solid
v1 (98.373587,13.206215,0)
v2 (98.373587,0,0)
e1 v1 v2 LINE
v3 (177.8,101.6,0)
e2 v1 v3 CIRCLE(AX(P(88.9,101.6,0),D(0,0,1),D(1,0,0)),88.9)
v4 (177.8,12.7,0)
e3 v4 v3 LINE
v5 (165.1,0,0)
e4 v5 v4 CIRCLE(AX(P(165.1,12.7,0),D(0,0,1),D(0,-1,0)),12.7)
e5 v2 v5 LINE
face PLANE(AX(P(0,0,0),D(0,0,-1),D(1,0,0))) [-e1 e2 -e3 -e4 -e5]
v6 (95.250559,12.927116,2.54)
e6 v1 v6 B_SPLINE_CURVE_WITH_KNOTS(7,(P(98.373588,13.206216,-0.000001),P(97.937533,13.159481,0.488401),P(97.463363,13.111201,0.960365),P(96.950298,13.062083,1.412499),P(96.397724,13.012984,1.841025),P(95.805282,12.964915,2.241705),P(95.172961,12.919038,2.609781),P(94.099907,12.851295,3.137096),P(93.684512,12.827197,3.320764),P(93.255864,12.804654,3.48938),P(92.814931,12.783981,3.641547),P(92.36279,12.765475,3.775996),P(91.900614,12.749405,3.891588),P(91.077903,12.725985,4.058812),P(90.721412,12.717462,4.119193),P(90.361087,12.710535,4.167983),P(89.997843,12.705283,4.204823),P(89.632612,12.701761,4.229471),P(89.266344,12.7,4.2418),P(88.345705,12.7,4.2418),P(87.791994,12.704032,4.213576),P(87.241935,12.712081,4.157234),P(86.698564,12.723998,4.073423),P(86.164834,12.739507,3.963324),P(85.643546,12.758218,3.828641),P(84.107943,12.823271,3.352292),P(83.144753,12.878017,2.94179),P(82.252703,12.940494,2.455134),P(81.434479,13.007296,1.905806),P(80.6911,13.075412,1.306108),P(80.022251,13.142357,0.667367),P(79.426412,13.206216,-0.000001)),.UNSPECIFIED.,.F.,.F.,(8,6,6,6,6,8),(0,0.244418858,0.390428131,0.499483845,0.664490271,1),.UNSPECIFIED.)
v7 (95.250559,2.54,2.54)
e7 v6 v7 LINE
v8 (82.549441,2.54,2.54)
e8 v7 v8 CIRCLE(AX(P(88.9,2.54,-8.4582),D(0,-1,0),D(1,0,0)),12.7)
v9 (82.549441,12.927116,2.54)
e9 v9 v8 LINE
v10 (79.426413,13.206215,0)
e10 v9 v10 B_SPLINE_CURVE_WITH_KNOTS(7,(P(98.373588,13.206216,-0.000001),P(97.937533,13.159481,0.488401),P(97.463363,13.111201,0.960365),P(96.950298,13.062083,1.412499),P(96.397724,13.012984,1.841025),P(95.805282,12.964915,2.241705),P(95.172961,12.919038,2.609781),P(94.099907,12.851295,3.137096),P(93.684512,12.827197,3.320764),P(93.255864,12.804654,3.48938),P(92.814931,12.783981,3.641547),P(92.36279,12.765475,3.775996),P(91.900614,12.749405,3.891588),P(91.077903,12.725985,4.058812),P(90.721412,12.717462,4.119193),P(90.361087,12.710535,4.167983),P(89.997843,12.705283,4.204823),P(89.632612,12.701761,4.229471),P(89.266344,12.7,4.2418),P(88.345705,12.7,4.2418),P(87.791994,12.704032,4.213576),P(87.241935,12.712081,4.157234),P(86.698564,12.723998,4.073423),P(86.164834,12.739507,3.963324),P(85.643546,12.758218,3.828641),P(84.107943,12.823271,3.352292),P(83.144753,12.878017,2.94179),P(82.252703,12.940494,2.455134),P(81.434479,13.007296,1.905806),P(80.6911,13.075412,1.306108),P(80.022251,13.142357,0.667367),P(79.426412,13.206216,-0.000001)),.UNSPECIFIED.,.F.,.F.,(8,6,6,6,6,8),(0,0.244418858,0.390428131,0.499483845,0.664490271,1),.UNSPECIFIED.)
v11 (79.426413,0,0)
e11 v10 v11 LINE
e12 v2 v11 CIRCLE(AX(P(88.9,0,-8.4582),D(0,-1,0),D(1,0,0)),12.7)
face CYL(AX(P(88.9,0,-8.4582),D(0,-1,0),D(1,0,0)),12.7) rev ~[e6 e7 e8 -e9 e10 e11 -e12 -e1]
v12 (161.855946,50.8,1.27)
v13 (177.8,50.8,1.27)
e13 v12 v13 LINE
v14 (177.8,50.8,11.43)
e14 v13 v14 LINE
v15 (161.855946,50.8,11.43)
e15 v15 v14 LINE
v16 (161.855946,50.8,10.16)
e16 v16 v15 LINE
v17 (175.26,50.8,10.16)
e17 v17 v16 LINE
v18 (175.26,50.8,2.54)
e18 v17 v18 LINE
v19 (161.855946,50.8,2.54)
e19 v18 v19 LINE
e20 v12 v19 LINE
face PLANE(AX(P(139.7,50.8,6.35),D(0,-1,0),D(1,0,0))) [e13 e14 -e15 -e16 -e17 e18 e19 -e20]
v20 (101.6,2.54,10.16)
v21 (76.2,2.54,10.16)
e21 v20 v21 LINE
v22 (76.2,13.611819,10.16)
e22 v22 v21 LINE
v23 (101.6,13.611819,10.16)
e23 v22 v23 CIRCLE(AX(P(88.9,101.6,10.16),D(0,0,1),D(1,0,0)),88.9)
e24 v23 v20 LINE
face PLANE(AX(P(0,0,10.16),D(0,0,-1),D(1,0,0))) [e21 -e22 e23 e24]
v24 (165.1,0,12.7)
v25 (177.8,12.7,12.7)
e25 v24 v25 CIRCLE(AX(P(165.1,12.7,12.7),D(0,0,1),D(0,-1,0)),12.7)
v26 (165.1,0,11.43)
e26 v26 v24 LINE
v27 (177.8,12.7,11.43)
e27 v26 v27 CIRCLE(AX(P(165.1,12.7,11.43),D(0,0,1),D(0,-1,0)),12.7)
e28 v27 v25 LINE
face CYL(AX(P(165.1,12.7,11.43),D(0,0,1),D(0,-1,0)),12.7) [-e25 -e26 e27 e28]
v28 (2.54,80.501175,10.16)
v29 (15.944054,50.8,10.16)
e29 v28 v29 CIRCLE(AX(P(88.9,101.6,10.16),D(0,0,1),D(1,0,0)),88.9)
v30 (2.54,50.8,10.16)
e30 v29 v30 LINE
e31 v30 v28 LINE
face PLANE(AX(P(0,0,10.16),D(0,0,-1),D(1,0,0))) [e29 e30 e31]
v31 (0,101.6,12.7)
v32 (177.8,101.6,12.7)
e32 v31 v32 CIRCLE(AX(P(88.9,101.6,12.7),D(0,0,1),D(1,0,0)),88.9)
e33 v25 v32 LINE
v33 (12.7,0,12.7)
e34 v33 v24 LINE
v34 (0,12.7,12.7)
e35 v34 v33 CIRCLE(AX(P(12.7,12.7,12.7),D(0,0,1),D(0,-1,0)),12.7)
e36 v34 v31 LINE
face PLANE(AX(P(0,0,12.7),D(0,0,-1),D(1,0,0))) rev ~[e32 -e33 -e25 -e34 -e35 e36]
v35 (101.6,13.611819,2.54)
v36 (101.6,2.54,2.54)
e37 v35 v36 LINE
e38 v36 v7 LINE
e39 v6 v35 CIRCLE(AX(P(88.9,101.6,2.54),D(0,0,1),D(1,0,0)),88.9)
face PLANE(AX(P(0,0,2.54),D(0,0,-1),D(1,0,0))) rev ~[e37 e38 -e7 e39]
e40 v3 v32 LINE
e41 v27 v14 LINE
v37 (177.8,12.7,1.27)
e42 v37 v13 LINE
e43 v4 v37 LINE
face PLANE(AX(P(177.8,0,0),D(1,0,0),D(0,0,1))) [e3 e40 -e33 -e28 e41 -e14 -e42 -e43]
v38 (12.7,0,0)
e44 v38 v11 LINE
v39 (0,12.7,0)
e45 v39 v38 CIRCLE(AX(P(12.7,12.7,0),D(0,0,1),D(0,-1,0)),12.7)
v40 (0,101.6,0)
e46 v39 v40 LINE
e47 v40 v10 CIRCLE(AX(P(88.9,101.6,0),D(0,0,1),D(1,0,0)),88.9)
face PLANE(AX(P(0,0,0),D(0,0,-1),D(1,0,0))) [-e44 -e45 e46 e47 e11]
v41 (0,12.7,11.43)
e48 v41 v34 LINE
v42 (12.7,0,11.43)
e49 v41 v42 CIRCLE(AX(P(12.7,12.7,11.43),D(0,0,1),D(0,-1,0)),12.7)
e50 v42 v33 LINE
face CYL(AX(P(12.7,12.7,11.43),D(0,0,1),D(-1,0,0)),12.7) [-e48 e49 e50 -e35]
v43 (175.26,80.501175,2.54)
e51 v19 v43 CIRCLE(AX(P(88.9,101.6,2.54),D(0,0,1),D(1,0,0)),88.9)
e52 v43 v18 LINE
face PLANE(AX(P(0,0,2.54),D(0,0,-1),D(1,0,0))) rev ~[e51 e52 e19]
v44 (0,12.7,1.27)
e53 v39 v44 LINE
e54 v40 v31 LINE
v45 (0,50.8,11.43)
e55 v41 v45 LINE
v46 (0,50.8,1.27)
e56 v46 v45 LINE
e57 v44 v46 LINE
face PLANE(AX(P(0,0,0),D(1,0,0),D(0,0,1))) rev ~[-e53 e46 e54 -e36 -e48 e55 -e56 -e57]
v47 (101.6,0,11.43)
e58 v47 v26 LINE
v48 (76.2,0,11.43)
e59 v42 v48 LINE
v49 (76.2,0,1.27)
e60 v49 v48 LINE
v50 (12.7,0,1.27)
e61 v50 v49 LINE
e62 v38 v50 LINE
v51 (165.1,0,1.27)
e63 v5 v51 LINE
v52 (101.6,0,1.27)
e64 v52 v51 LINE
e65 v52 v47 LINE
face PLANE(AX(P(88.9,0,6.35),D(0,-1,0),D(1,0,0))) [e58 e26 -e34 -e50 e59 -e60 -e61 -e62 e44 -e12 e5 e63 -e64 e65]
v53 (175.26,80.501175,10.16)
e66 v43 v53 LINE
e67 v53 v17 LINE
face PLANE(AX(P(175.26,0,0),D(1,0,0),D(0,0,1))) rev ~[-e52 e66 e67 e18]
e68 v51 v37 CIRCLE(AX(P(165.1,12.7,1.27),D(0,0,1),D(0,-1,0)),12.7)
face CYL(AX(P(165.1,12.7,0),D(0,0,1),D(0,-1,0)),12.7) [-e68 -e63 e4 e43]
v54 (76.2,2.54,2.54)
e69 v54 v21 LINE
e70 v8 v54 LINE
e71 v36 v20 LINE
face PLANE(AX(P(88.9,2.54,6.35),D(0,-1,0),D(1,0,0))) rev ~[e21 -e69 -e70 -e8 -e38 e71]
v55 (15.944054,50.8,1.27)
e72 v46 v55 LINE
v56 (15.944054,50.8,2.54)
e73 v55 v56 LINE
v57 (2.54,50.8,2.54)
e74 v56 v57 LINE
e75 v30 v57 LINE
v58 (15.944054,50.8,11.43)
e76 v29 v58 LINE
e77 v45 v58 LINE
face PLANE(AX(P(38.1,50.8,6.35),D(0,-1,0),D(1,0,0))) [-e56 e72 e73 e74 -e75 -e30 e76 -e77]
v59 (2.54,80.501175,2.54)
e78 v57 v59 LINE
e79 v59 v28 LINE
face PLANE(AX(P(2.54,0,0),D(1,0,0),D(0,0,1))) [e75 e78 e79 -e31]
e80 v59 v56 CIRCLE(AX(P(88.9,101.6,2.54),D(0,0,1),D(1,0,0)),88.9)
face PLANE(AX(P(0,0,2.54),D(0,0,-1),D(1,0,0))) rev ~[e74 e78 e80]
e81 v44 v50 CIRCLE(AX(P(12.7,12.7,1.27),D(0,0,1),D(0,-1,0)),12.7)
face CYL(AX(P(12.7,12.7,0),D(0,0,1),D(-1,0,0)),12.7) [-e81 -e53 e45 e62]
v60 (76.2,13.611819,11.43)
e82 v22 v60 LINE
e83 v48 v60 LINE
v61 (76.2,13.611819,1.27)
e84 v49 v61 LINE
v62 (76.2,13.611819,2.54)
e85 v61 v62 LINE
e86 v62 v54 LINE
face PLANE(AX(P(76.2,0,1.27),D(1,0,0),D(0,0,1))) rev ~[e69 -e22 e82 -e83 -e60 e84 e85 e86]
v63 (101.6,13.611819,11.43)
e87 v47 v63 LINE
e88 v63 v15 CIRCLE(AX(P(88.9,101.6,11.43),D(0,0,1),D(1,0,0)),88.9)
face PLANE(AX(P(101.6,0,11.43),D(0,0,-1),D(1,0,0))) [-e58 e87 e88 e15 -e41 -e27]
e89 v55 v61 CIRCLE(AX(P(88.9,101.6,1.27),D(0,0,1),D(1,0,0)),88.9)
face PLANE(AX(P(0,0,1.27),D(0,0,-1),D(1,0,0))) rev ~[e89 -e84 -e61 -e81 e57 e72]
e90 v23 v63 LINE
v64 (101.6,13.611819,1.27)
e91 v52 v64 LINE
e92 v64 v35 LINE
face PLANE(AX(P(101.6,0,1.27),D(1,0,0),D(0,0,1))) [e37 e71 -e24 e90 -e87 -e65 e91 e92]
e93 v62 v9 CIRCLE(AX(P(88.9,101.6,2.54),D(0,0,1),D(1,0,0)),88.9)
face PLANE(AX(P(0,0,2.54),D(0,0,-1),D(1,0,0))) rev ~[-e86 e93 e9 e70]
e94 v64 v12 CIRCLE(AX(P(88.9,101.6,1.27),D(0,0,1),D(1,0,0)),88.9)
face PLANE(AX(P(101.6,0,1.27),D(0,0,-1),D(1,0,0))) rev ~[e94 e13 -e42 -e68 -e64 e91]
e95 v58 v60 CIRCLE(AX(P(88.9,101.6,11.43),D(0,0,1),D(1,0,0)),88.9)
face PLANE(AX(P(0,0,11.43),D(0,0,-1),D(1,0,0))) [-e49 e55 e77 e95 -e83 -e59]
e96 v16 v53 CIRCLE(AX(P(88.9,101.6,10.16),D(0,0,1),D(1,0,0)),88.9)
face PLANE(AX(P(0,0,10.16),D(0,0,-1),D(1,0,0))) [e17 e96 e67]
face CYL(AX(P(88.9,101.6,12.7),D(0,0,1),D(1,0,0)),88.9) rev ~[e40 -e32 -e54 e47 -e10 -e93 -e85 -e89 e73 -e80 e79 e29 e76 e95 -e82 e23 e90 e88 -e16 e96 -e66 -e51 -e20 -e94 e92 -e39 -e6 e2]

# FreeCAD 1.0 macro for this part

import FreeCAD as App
import Part
import Sketcher
Q = App.Units.Quantity


def edges_at(feature, points):
    """Names of the edges that pass closest to the given points."""
    edges = feature.Shape.Edges
    near = lambda p: min(range(len(edges)), key=lambda i: edges[i].distToShape(Part.Vertex(*p))[0])
    return sorted({f"Edge{near(p) + 1}" for p in points})


def faces_at(feature, points):
    """Names of the faces that lie closest to the given points."""
    faces = feature.Shape.Faces
    near = lambda p: min(range(len(faces)), key=lambda i: faces[i].distToShape(Part.Vertex(*p))[0])
    return sorted({f"Face{near(p) + 1}" for p in points})

doc = App.newDocument("Part")
body = doc.addObject("PartDesign::Body", "Body")

sketch1 = body.newObject("Sketcher::SketchObject", "Sketch")
sketch1.AttachmentSupport = (doc.getObject("XZ_Plane"), [""])
sketch1.MapMode = "FlatFace"
sketch1.addGeometry(Part.LineSegment(App.Vector(0, 13, 0), App.Vector(0, 0, 0)), False)
sketch1.addGeometry(Part.LineSegment(App.Vector(0, 0, 0), App.Vector(178, 0, 0)), False)
sketch1.addGeometry(Part.LineSegment(App.Vector(178, 0, 0), App.Vector(178, 13, 0)), False)
sketch1.addGeometry(Part.LineSegment(App.Vector(178, 13, 0), App.Vector(0, 13, 0)), False)
sketch1.addConstraint(Sketcher.Constraint("Coincident", 0, 2, 1, 1))
sketch1.addConstraint(Sketcher.Constraint("Coincident", 1, 2, 2, 1))
sketch1.addConstraint(Sketcher.Constraint("Coincident", 2, 2, 3, 1))
sketch1.addConstraint(Sketcher.Constraint("Coincident", 3, 2, 0, 1))
sketch1.addConstraint(Sketcher.Constraint("Vertical", 0))
sketch1.addConstraint(Sketcher.Constraint("Horizontal", 1))
sketch1.addConstraint(Sketcher.Constraint("Vertical", 2))
sketch1.addConstraint(Sketcher.Constraint("Horizontal", 3))
sketch1.addConstraint(Sketcher.Constraint("Coincident", 0, 2, -1, 1))
sketch1.addConstraint(Sketcher.Constraint("DistanceX", 1, 1, 1, 2, Q("7 in")))
sketch1.addConstraint(Sketcher.Constraint("DistanceY", 0, 2, 0, 1, Q("0.5 in")))
pad1 = body.newObject("PartDesign::Pad", "Pad")
pad1.Profile = sketch1
pad1.Length = Q("4 in")
pad1.Reversed = True

sketch2 = body.newObject("Sketcher::SketchObject", "Sketch001")
sketch2.AttachmentSupport = (doc.getObject("XY_Plane"), [""])
sketch2.MapMode = "FlatFace"
sketch2.AttachmentOffset = App.Placement(App.Vector(0, 0, 0.5 * 25.4), App.Rotation())
sketch2.addGeometry(Part.Circle(App.Vector(89, 102, 0), App.Vector(0, 0, 1), 89), False)
sketch2.addConstraint(Sketcher.Constraint("Diameter", 0, Q("7 in")))
sketch2.addConstraint(Sketcher.Constraint("DistanceY", -1, 1, 0, 3, Q("4 in")))
sketch2.addConstraint(Sketcher.Constraint("DistanceX", -1, 1, 0, 3, Q("3.5 in")))
pocket1 = body.newObject("PartDesign::Pocket", "Pocket")
pocket1.Profile = sketch2
pocket1.Length = Q("1 in")
doc.recompute()

thickness = body.newObject("PartDesign::Thickness", "Thickness")
thickness.Base = (pocket1, faces_at(pocket1, [(88.9, 12.7, 6.35)]))
thickness.Value = Q("0.1 in")
thickness.Reversed = True
thickness.Join = "Intersection"

sketch3 = body.newObject("Sketcher::SketchObject", "Sketch002")
sketch3.AttachmentSupport = (doc.getObject("XZ_Plane"), [""])
sketch3.MapMode = "FlatFace"
sketch3.addGeometry(Part.LineSegment(App.Vector(0, 11, 0), App.Vector(0, 1, 0)), False)
sketch3.addGeometry(Part.LineSegment(App.Vector(0, 1, 0), App.Vector(76, 1, 0)), False)
sketch3.addGeometry(Part.LineSegment(App.Vector(76, 1, 0), App.Vector(76, 11, 0)), False)
sketch3.addGeometry(Part.LineSegment(App.Vector(76, 11, 0), App.Vector(0, 11, 0)), False)
sketch3.addGeometry(Part.LineSegment(App.Vector(102, 11, 0), App.Vector(102, 1, 0)), False)
sketch3.addGeometry(Part.LineSegment(App.Vector(102, 1, 0), App.Vector(178, 1, 0)), False)
sketch3.addGeometry(Part.LineSegment(App.Vector(178, 1, 0), App.Vector(178, 11, 0)), False)
sketch3.addGeometry(Part.LineSegment(App.Vector(178, 11, 0), App.Vector(102, 11, 0)), False)
sketch3.addConstraint(Sketcher.Constraint("Coincident", 0, 2, 1, 1))
sketch3.addConstraint(Sketcher.Constraint("Coincident", 1, 2, 2, 1))
sketch3.addConstraint(Sketcher.Constraint("Coincident", 2, 2, 3, 1))
sketch3.addConstraint(Sketcher.Constraint("Coincident", 3, 2, 0, 1))
sketch3.addConstraint(Sketcher.Constraint("Coincident", 4, 2, 5, 1))
sketch3.addConstraint(Sketcher.Constraint("Coincident", 5, 2, 6, 1))
sketch3.addConstraint(Sketcher.Constraint("Coincident", 6, 2, 7, 1))
sketch3.addConstraint(Sketcher.Constraint("Coincident", 7, 2, 4, 1))
sketch3.addConstraint(Sketcher.Constraint("Vertical", 0))
sketch3.addConstraint(Sketcher.Constraint("Horizontal", 1))
sketch3.addConstraint(Sketcher.Constraint("Vertical", 2))
sketch3.addConstraint(Sketcher.Constraint("Horizontal", 3))
sketch3.addConstraint(Sketcher.Constraint("Vertical", 4))
sketch3.addConstraint(Sketcher.Constraint("Horizontal", 5))
sketch3.addConstraint(Sketcher.Constraint("Vertical", 6))
sketch3.addConstraint(Sketcher.Constraint("Horizontal", 7))
sketch3.addConstraint(Sketcher.Constraint("PointOnObject", 0, 2, -2))
sketch3.addConstraint(Sketcher.Constraint("Horizontal", 1, 2, 4, 2))
sketch3.addConstraint(Sketcher.Constraint("Horizontal", 3, 2, 6, 2))
sketch3.addConstraint(Sketcher.Constraint("Equal", 3, 5))
sketch3.addConstraint(Sketcher.Constraint("DistanceX", 1, 1, 1, 2, Q("3 in")))
sketch3.addConstraint(Sketcher.Constraint("DistanceY", 0, 2, 0, 1, Q("0.4 in")))
sketch3.addConstraint(Sketcher.Constraint("DistanceX", -1, 1, 4, 2, Q("4 in")))
sketch3.addConstraint(Sketcher.Constraint("DistanceY", -1, 1, 0, 2, Q("0.05 in")))
pocket2 = body.newObject("PartDesign::Pocket", "Pocket001")
pocket2.Profile = sketch3
pocket2.Length = Q("2 in")
doc.recompute()

fillet = body.newObject("PartDesign::Fillet", "Fillet")
fillet.Base = (pocket2, edges_at(pocket2, [
    (177.8, 0, 12.065),
    (177.8, 0, 0.635),
    (0, 0, 12.065),
    (0, 0, 0.635),
]))
fillet.Radius = Q("0.5 in")

sketch4 = body.newObject("Sketcher::SketchObject", "Sketch003")
sketch4.AttachmentSupport = (doc.getObject("XZ_Plane"), [""])
sketch4.MapMode = "FlatFace"
sketch4.addGeometry(Part.Circle(App.Vector(89, -8, 0), App.Vector(0, 0, 1), 13), False)
sketch4.addConstraint(Sketcher.Constraint("Diameter", 0, Q("1 in")))
sketch4.addConstraint(Sketcher.Constraint("DistanceX", -1, 1, 0, 3, Q("3.5 in")))
sketch4.addConstraint(Sketcher.Constraint("DistanceY", 0, 3, -1, 1, Q("0.333 in")))
pocket3 = body.newObject("PartDesign::Pocket", "Pocket002")
pocket3.Profile = sketch4
pocket3.Length = Q("1 in")

doc.recompute()
